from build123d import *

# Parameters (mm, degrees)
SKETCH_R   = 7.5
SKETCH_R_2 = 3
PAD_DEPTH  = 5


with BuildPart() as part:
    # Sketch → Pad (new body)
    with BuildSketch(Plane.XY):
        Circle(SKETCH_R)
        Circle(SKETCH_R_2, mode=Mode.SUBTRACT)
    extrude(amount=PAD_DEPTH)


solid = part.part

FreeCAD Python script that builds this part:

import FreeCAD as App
import Part
import Sketcher
from FreeCAD import Vector
Q = App.Units.Quantity

doc = App.newDocument("Part")
body = doc.addObject("PartDesign::Body", "Body")

# Sketch on XY plane
sketch1 = doc.addObject("Sketcher::SketchObject", "Sketch")
body.addObject(sketch1)
sketch1.AttachmentSupport = (doc.XY_Plane, [""])
sketch1.MapMode = "FlatFace"
sketch1.addGeometry([
    Part.Circle(Vector(0, 0, 0), Vector(0, 0, 1), 7.5),
    Part.Circle(Vector(0, 0, 0), Vector(0, 0, 1), 3),
], False)
sketch1.addConstraint([
    Sketcher.Constraint("Coincident", 0, 3, -1, 1),
    Sketcher.Constraint("Coincident", 1, 3, -1, 1),
    Sketcher.Constraint("Diameter", 0, Q("15 mm")),
    Sketcher.Constraint("Diameter", 1, Q("6 mm")),
])
pad1 = doc.addObject("PartDesign::Pad", "Pad")
body.addObject(pad1)
pad1.Profile = sketch1
pad1.Length = 5

doc.recompute()
